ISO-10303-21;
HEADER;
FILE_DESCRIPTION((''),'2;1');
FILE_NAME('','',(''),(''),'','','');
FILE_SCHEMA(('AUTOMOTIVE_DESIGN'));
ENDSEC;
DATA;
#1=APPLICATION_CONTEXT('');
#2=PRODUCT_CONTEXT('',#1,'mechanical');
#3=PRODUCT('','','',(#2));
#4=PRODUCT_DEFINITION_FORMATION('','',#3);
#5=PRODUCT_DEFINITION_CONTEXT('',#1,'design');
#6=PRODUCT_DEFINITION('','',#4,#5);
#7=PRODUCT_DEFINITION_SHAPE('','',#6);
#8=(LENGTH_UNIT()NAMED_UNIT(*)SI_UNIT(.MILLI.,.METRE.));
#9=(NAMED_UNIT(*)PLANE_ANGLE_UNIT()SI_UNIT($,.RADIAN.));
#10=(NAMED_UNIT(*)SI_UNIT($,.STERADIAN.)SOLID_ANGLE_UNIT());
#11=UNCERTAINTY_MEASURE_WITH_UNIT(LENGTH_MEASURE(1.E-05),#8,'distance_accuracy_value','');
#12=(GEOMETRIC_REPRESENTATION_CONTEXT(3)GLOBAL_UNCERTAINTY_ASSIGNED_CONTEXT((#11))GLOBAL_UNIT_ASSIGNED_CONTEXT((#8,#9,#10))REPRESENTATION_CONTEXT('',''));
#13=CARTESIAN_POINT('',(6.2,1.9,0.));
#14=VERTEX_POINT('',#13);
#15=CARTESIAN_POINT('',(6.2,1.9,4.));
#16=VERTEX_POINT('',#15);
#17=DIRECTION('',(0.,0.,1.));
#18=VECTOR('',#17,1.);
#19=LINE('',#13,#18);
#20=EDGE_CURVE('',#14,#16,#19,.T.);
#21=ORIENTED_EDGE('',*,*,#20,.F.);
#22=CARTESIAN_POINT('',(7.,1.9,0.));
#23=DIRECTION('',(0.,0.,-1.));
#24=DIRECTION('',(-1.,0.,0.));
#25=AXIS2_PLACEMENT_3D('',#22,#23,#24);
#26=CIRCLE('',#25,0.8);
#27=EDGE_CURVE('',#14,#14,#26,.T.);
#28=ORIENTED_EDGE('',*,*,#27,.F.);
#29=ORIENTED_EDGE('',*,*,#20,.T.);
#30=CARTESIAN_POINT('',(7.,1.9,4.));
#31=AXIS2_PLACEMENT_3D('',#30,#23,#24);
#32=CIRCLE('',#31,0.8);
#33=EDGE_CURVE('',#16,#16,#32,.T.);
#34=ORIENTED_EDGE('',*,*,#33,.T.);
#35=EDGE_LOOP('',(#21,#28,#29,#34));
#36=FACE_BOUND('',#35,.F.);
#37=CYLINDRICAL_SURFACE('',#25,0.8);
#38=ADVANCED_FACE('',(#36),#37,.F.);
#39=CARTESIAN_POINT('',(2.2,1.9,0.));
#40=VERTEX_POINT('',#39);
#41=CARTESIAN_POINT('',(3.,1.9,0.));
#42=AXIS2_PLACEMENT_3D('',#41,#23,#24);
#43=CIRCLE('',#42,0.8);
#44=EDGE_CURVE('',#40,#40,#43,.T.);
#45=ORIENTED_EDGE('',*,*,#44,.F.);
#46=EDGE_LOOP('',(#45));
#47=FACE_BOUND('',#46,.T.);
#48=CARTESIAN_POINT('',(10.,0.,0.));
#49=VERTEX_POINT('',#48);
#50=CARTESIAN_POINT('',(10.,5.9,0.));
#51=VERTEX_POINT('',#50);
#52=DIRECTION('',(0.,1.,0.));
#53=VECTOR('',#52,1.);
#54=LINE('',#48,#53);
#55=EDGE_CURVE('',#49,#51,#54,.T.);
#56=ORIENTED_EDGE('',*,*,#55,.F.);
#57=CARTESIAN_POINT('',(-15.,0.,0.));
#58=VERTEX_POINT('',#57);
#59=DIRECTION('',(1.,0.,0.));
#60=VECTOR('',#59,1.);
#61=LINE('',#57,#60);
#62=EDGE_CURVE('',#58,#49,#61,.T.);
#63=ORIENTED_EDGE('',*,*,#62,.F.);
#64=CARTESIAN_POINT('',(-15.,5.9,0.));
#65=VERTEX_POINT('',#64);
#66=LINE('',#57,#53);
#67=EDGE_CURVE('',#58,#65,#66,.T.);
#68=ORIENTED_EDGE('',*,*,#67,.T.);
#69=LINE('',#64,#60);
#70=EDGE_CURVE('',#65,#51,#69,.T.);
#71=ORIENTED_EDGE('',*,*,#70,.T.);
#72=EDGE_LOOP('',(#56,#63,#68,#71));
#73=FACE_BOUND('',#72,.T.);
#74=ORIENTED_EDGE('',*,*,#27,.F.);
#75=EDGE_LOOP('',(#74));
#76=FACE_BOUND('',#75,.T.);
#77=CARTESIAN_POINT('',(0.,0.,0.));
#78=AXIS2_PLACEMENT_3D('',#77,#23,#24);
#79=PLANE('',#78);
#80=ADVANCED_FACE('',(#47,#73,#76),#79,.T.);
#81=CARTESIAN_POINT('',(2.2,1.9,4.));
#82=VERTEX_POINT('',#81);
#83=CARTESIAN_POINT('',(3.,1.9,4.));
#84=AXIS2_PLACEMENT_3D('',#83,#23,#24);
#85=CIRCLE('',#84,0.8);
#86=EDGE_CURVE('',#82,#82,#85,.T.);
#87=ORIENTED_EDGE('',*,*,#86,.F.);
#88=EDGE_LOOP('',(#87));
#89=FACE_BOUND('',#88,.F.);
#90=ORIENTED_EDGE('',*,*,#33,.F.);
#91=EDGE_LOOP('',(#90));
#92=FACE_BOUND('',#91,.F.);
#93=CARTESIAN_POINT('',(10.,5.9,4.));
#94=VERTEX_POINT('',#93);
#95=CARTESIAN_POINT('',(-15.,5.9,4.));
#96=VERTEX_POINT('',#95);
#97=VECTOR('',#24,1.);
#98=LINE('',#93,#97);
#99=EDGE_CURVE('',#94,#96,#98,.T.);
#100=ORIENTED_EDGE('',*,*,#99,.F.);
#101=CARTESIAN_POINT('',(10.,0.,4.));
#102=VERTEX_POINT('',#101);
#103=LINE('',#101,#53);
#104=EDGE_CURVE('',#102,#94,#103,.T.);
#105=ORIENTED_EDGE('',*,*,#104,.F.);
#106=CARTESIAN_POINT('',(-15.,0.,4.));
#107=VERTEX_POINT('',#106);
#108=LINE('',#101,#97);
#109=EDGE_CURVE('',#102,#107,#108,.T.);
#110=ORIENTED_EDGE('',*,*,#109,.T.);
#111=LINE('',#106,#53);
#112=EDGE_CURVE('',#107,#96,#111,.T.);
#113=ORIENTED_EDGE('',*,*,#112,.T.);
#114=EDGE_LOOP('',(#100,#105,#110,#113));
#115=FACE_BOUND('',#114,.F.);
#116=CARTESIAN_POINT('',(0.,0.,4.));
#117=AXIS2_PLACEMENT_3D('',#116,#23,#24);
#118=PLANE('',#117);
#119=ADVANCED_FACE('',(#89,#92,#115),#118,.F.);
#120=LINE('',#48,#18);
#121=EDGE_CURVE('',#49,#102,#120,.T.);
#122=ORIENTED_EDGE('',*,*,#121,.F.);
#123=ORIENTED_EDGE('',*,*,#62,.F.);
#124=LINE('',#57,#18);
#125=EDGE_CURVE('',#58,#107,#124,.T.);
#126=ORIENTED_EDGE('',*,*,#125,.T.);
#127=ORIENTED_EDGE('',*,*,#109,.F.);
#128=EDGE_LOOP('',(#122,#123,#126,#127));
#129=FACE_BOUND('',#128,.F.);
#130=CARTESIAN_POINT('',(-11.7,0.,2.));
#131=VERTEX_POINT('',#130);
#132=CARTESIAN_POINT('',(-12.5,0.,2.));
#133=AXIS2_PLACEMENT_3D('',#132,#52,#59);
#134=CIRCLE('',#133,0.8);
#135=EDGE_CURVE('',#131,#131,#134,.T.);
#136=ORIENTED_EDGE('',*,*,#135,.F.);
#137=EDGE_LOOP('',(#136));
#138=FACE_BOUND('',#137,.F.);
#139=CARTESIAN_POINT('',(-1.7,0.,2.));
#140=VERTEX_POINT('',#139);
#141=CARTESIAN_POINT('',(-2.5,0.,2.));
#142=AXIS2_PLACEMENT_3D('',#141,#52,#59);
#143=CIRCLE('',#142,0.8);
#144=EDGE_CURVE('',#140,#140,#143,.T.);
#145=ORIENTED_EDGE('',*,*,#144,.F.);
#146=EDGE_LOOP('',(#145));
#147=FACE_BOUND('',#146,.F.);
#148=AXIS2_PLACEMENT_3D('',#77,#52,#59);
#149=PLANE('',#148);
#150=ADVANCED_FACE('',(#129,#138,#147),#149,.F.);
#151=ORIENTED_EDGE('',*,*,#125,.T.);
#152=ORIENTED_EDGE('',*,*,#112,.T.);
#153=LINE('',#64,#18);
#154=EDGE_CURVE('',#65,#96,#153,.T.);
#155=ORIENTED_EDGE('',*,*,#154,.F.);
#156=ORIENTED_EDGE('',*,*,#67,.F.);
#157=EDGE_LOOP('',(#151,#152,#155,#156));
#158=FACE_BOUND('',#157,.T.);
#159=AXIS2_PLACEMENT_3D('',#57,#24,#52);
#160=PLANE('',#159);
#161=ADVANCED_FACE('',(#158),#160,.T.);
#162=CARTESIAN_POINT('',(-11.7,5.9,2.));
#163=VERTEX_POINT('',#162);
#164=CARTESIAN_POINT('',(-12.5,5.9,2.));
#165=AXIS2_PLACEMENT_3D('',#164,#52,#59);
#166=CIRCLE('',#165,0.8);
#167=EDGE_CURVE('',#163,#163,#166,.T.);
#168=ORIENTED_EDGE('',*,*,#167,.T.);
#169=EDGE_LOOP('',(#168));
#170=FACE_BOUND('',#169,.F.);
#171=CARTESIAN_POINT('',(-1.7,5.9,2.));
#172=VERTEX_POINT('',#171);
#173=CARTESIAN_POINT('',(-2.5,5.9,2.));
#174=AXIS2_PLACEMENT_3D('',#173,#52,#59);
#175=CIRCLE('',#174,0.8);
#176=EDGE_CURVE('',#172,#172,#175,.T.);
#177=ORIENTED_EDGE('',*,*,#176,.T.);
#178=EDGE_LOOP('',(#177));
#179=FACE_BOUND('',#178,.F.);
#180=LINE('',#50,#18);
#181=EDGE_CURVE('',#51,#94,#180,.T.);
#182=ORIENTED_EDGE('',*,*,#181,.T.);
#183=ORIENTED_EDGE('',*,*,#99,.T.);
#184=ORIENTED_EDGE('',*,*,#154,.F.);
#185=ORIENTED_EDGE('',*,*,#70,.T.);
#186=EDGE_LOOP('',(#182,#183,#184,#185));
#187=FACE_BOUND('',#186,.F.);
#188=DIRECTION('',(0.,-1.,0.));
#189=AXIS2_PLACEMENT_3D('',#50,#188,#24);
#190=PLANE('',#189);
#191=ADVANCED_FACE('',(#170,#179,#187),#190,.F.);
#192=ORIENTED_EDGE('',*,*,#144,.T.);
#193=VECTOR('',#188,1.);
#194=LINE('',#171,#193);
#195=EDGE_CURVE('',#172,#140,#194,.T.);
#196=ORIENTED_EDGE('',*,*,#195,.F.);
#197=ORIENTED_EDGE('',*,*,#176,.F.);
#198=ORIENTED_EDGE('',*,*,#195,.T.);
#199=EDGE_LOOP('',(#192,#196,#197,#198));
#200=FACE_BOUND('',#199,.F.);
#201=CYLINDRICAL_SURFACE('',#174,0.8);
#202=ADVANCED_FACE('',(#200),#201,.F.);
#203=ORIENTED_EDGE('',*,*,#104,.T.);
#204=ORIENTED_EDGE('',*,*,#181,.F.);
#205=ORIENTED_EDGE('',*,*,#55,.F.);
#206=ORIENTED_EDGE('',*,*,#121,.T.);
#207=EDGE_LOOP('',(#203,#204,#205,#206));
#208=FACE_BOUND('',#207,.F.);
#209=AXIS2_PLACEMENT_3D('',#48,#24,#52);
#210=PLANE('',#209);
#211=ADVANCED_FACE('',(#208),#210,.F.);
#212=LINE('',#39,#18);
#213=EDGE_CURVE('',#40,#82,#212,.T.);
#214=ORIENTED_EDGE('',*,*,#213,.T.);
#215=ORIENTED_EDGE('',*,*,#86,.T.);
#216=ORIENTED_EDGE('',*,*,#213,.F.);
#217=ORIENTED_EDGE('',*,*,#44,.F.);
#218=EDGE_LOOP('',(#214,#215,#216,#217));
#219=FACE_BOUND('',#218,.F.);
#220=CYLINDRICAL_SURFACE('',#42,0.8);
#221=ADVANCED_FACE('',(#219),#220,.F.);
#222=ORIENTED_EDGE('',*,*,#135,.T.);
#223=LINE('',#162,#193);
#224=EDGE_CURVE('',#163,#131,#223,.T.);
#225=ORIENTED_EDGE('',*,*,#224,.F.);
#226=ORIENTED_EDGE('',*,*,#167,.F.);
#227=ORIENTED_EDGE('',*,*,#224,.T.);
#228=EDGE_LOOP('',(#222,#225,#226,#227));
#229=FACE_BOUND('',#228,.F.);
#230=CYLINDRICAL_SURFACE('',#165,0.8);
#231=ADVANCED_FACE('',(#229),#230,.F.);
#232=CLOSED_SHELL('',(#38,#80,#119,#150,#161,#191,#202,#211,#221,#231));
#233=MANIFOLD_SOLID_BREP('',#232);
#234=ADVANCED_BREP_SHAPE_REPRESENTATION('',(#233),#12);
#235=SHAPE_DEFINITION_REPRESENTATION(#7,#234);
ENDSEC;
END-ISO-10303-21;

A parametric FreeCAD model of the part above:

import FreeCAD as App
import Part
import Sketcher
from FreeCAD import Vector

doc = App.newDocument("Part")
body = doc.addObject("PartDesign::Body", "Body")

sketch1 = body.newObject("Sketcher::SketchObject", "Sketch")
sketch1.AttachmentSupport = (doc.getObject("XY_Plane"), [""])
sketch1.MapMode = "FlatFace"
sketch1.addGeometry([
    Part.LineSegment(Vector(-15, 0, 0), Vector(0, 0, 0)),
    Part.LineSegment(Vector(0, 0, 0), Vector(0, 6, 0)),
    Part.LineSegment(Vector(0, 6, 0), Vector(-15, 6, 0)),
    Part.LineSegment(Vector(-15, 6, 0), Vector(-15, 0, 0)),
], False)
sketch1.addConstraint([
    Sketcher.Constraint("Coincident", 0, 2, 1, 1),
    Sketcher.Constraint("Coincident", 1, 2, 2, 1),
    Sketcher.Constraint("Coincident", 2, 2, 3, 1),
    Sketcher.Constraint("Coincident", 3, 2, 0, 1),
    Sketcher.Constraint("Horizontal", 0),
    Sketcher.Constraint("Vertical", 1),
    Sketcher.Constraint("Horizontal", 2),
    Sketcher.Constraint("Vertical", 3),
    Sketcher.Constraint("Coincident", 0, 2, -1, 1),
    Sketcher.Constraint("DistanceX", 0, 1, 0, 2, 15.0),
    Sketcher.Constraint("DistanceY", 1, 1, 1, 2, 5.9),
])
pad1 = body.newObject("PartDesign::Pad", "Pad")
pad1.Profile = sketch1
pad1.Length = 4

sketch2 = body.newObject("Sketcher::SketchObject", "Sketch001")
sketch2.AttachmentSupport = (doc.getObject("XZ_Plane"), [""])
sketch2.MapMode = "FlatFace"
sketch2.AttachmentOffset = App.Placement(Vector(0, 0, -5.9), App.Rotation())
sketch2.addGeometry([
    Part.Circle(Vector(-2.5, 2, 0), Vector(0, 0, 1), 0.8),
    Part.Circle(Vector(-12.5, 2, 0), Vector(0, 0, 1), 0.8),
], False)
sketch2.addConstraint([
    Sketcher.Constraint("Equal", 0, 1),
    Sketcher.Constraint("Horizontal", 0, 3, 1, 3),
    Sketcher.Constraint("Diameter", 0, 1.6),
    Sketcher.Constraint("DistanceY", -1, 1, 0, 3, 2.0),
    Sketcher.Constraint("DistanceX", 1, 3, 0, 3, 10.0),
    Sketcher.Constraint("DistanceX", 0, 3, -1, 1, 2.5),
])
pocket1 = body.newObject("PartDesign::Pocket", "Pocket")
pocket1.Profile = sketch2
pocket1.Length = 8
pocket1.Reversed = True

sketch3 = body.newObject("Sketcher::SketchObject", "Sketch002")
sketch3.AttachmentSupport = (doc.getObject("XY_Plane"), [""])
sketch3.MapMode = "FlatFace"
sketch3.addGeometry([
    Part.LineSegment(Vector(10, 0, 0), Vector(0, 0, 0)),
    Part.LineSegment(Vector(0, 0, 0), Vector(0, 6, 0)),
    Part.LineSegment(Vector(0, 6, 0), Vector(10, 6, 0)),
    Part.LineSegment(Vector(10, 6, 0), Vector(10, 0, 0)),
], False)
sketch3.addConstraint([
    Sketcher.Constraint("Coincident", 0, 2, 1, 1),
    Sketcher.Constraint("Coincident", 1, 2, 2, 1),
    Sketcher.Constraint("Coincident", 2, 2, 3, 1),
    Sketcher.Constraint("Coincident", 3, 2, 0, 1),
    Sketcher.Constraint("Horizontal", 0),
    Sketcher.Constraint("Vertical", 1),
    Sketcher.Constraint("Horizontal", 2),
    Sketcher.Constraint("Vertical", 3),
    Sketcher.Constraint("Coincident", 0, 2, -1, 1),
    Sketcher.Constraint("DistanceX", 0, 2, 0, 1, 10.0),
    Sketcher.Constraint("DistanceY", 1, 1, 1, 2, 5.9),
])
pad2 = body.newObject("PartDesign::Pad", "Pad001")
pad2.Profile = sketch3
pad2.Length = 4

sketch4 = body.newObject("Sketcher::SketchObject", "Sketch003")
sketch4.AttachmentSupport = (doc.getObject("XY_Plane"), [""])
sketch4.MapMode = "FlatFace"
sketch4.addGeometry([
    Part.Circle(Vector(3, 1.9, 0), Vector(0, 0, 1), 0.8),
    Part.Circle(Vector(7, 1.9, 0), Vector(0, 0, 1), 0.8),
], False)
sketch4.addConstraint([
    Sketcher.Constraint("Equal", 0, 1),
    Sketcher.Constraint("Horizontal", 0, 3, 1, 3),
    Sketcher.Constraint("Diameter", 0, 1.6),
    Sketcher.Constraint("DistanceX", -1, 1, 0, 3, 3.0),
    Sketcher.Constraint("DistanceX", 0, 3, 1, 3, 4.0),
    Sketcher.Constraint("DistanceY", -1, 1, 0, 3, 1.9),
])
pocket2 = body.newObject("PartDesign::Pocket", "Pocket001")
pocket2.Profile = sketch4
pocket2.Length = 4
pocket2.Reversed = True

doc.recompute()
